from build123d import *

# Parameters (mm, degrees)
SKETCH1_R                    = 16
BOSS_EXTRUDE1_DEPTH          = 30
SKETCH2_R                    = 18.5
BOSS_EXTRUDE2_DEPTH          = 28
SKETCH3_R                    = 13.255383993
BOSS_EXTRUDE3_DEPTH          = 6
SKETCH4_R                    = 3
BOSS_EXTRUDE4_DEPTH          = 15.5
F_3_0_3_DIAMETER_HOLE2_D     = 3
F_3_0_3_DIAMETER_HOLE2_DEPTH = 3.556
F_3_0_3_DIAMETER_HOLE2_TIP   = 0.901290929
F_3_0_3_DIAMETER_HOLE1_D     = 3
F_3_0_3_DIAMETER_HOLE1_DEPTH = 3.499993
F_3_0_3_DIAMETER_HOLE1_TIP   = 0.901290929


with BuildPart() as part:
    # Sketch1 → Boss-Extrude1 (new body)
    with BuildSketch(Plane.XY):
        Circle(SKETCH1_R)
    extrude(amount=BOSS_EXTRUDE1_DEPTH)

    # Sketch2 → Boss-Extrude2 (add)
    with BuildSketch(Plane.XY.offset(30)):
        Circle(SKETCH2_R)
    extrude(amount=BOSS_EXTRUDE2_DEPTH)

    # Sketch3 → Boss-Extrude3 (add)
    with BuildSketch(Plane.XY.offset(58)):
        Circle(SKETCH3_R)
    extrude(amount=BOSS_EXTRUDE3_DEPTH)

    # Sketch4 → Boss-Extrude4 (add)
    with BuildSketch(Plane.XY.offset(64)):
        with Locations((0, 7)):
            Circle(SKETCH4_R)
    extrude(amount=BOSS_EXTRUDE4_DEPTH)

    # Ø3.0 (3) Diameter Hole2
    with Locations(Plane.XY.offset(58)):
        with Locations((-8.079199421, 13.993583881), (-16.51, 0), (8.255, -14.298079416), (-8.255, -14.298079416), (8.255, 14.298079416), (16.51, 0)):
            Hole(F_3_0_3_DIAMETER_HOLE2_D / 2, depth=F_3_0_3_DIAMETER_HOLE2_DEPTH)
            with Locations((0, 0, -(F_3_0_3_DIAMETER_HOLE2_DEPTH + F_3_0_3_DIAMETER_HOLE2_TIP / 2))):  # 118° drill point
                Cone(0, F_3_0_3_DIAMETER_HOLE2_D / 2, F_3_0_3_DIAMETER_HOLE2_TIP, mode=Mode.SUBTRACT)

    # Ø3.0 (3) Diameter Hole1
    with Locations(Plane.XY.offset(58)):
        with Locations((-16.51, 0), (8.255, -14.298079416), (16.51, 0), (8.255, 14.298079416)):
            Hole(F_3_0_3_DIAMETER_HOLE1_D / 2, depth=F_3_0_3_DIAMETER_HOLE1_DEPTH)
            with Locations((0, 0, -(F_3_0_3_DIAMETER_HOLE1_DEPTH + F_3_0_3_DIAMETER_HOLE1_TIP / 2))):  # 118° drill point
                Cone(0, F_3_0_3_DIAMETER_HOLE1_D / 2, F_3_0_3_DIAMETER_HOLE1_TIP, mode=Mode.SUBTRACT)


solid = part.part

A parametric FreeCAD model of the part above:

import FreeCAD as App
import Part
import Sketcher

V = App.Vector
Q = App.Units.Quantity

doc = App.newDocument("Part")
body = doc.addObject("PartDesign::Body", "Body")

sketch1 = body.newObject("Sketcher::SketchObject", "Sketch")
sketch1.AttachmentSupport = (doc.getObject("XY_Plane"), [""])
sketch1.MapMode = "FlatFace"
sketch1.addGeometry(Part.Circle(V(0, 0, 0), V(0, 0, 1), 16), False)
sketch1.addConstraint([
    Sketcher.Constraint("Coincident", 0, 3, -1, 1),
    Sketcher.Constraint("Diameter", 0, Q("32 mm")),
])
pad1 = body.newObject("PartDesign::Pad", "Pad")
pad1.Profile = sketch1
pad1.Length = 30

sketch2 = body.newObject("Sketcher::SketchObject", "Sketch001")
sketch2.AttachmentSupport = (doc.getObject("XY_Plane"), [""])
sketch2.MapMode = "FlatFace"
sketch2.AttachmentOffset = App.Placement(V(0, 0, 30), App.Rotation())
sketch2.addGeometry(Part.Circle(V(0, 0, 0), V(0, 0, 1), 18.5), False)
sketch2.addConstraint([
    Sketcher.Constraint("Coincident", 0, 3, -1, 1),
    Sketcher.Constraint("Diameter", 0, Q("37 mm")),
])
pad2 = body.newObject("PartDesign::Pad", "Pad001")
pad2.Profile = sketch2
pad2.Length = 28

sketch3 = body.newObject("Sketcher::SketchObject", "Sketch002")
sketch3.AttachmentSupport = (doc.getObject("XY_Plane"), [""])
sketch3.MapMode = "FlatFace"
sketch3.AttachmentOffset = App.Placement(V(0, 0, 58), App.Rotation())
sketch3.addGeometry(Part.Circle(V(0, 0, 0), V(0, 0, 1), 13.255384), False)
sketch3.addConstraint([
    Sketcher.Constraint("Coincident", 0, 3, -1, 1),
    Sketcher.Constraint("Diameter", 0, Q("26.510768 mm")),
])
pad3 = body.newObject("PartDesign::Pad", "Pad002")
pad3.Profile = sketch3
pad3.Length = 6

sketch4 = body.newObject("Sketcher::SketchObject", "Sketch003")
sketch4.AttachmentSupport = (doc.getObject("XY_Plane"), [""])
sketch4.MapMode = "FlatFace"
sketch4.AttachmentOffset = App.Placement(V(0, 0, 64), App.Rotation())
sketch4.addGeometry(Part.Circle(V(0, 7, 0), V(0, 0, 1), 3), False)
sketch4.addConstraint([
    Sketcher.Constraint("PointOnObject", 0, 3, -2),
    Sketcher.Constraint("Diameter", 0, Q("6 mm")),
    Sketcher.Constraint("DistanceY", -1, 1, 0, 3, Q("7 mm")),
])
pad4 = body.newObject("PartDesign::Pad", "Pad003")
pad4.Profile = sketch4
pad4.Length = 15.5

sketch5 = body.newObject("Sketcher::SketchObject", "Sketch004")
sketch5.AttachmentSupport = (doc.getObject("XY_Plane"), [""])
sketch5.MapMode = "FlatFace"
sketch5.AttachmentOffset = App.Placement(V(0, 0, 58), App.Rotation())
sketch5.addGeometry([
    Part.Circle(V(-8.079199, 13.993584, 0), V(0, 0, 1), 1.5),
    Part.Circle(V(-16.51, 0, 0), V(0, 0, 1), 1.5),
    Part.Circle(V(8.255, -14.298079, 0), V(0, 0, 1), 1.5),
    Part.Circle(V(-8.255, -14.298079, 0), V(0, 0, 1), 1.5),
    Part.Circle(V(8.255, 14.298079, 0), V(0, 0, 1), 1.5),
    Part.Circle(V(16.51, 0, 0), V(0, 0, 1), 1.5),
], False)
sketch5.addConstraint([
    Sketcher.Constraint("Equal", 0, 1),
    Sketcher.Constraint("Equal", 1, 2),
    Sketcher.Constraint("Equal", 2, 3),
    Sketcher.Constraint("Equal", 3, 4),
    Sketcher.Constraint("Equal", 4, 5),
    Sketcher.Constraint("Symmetric", 3, 3, 4, 3, -1, 1),
    Sketcher.Constraint("Symmetric", 1, 3, 5, 3, -1, 1),
    Sketcher.Constraint("Symmetric", 2, 3, 3, 3, -2),
    Sketcher.Constraint("PointOnObject", 1, 3, -1),
    Sketcher.Constraint("Diameter", 0, Q("3 mm")),
    Sketcher.Constraint("DistanceX", 1, 3, -1, 1, Q("16.51 mm")),
    Sketcher.Constraint("DistanceX", 3, 3, 2, 3, Q("16.51 mm")),
    Sketcher.Constraint("DistanceX", 0, 3, -1, 1, Q("8.079199 mm")),
    Sketcher.Constraint("DistanceY", 2, 3, -1, 1, Q("14.298079 mm")),
    Sketcher.Constraint("DistanceY", -1, 1, 0, 3, Q("13.993584 mm")),
])
doc.recompute()
hole = body.newObject("PartDesign::Hole", "Hole")
hole.Profile = sketch5
hole.ThreadType = "None"
hole.Diameter = 3
hole.DepthType = "Dimension"
hole.Depth = 3.556
hole.DrillPoint = "Angled"
hole.DrillPointAngle = 118

sketch6 = body.newObject("Sketcher::SketchObject", "Sketch005")
sketch6.AttachmentSupport = (doc.getObject("XY_Plane"), [""])
sketch6.MapMode = "FlatFace"
sketch6.AttachmentOffset = App.Placement(V(0, 0, 58), App.Rotation())
sketch6.addGeometry([
    Part.Circle(V(-16.51, 0, 0), V(0, 0, 1), 1.5),
    Part.Circle(V(8.255, -14.298079, 0), V(0, 0, 1), 1.5),
    Part.Circle(V(16.51, 0, 0), V(0, 0, 1), 1.5),
    Part.Circle(V(8.255, 14.298079, 0), V(0, 0, 1), 1.5),
], False)
sketch6.addConstraint([
    Sketcher.Constraint("Equal", 0, 1),
    Sketcher.Constraint("Equal", 1, 2),
    Sketcher.Constraint("Equal", 2, 3),
    Sketcher.Constraint("Symmetric", 0, 3, 2, 3, -1, 1),
    Sketcher.Constraint("Symmetric", 1, 3, 3, 3, -1),
    Sketcher.Constraint("PointOnObject", 0, 3, -1),
    Sketcher.Constraint("Diameter", 0, Q("3 mm")),
    Sketcher.Constraint("DistanceX", 0, 3, -1, 1, Q("16.51 mm")),
    Sketcher.Constraint("DistanceX", -1, 1, 1, 3, Q("8.255 mm")),
    Sketcher.Constraint("DistanceY", 1, 3, -1, 1, Q("14.298079 mm")),
])
doc.recompute()
hole2 = body.newObject("PartDesign::Hole", "Hole001")
hole2.Profile = sketch6
hole2.ThreadType = "None"
hole2.Diameter = 3
hole2.DepthType = "Dimension"
hole2.Depth = 3.499993
hole2.DrillPoint = "Angled"
hole2.DrillPointAngle = 118

doc.recompute()
